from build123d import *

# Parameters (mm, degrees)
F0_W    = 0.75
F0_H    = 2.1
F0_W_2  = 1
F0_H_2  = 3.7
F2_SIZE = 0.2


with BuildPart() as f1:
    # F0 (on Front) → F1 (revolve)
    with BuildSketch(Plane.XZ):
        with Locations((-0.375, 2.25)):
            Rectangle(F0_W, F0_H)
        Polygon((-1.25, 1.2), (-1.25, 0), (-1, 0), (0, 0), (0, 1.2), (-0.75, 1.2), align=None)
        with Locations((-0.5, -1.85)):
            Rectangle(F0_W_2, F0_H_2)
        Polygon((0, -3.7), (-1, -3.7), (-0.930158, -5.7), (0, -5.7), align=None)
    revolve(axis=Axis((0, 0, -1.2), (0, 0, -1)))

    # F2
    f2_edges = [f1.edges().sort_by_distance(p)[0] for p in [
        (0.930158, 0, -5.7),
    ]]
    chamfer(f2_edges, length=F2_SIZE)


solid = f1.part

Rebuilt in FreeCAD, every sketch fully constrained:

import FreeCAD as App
import Part
import Sketcher
from FreeCAD import Vector
Q = App.Units.Quantity


def edges_at(feature, points):
    """Names of the edges that pass closest to the given points."""
    edges = feature.Shape.Edges
    near = lambda p: min(range(len(edges)), key=lambda i: edges[i].distToShape(Part.Vertex(*p))[0])
    return sorted({f"Edge{near(p) + 1}" for p in points})

doc = App.newDocument("Part")
body = doc.addObject("PartDesign::Body", "Body")

# Sketch on XZ plane
sketch1 = doc.addObject("Sketcher::SketchObject", "Sketch")
body.addObject(sketch1)
sketch1.AttachmentSupport = (doc.XZ_Plane, [""])
sketch1.MapMode = "FlatFace"
sketch1.addGeometry([
    Part.LineSegment(Vector(-0.75, 3.3, 0), Vector(-0.75, 1.2, 0)),  # 0
    Part.LineSegment(Vector(-0.75, 1.2, 0), Vector(-1.25, 1.2, 0)),  # 1
    Part.LineSegment(Vector(-1.25, 1.2, 0), Vector(-1.25, 0, 0)),  # 2
    Part.LineSegment(Vector(-1.25, 0, 0), Vector(-1, 0, 0)),  # 3
    Part.LineSegment(Vector(-1, 0, 0), Vector(-1, -3.7, 0)),  # 4
    Part.LineSegment(Vector(-1, -3.7, 0), Vector(-0.93, -5.7, 0)),  # 5
    Part.LineSegment(Vector(-0.93, -5.7, 0), Vector(0, -5.7, 0)),  # 6
    Part.LineSegment(Vector(0, -5.7, 0), Vector(0, 3.3, 0)),  # 7
    Part.LineSegment(Vector(0, 3.3, 0), Vector(-0.75, 3.3, 0)),  # 8
], False)
sketch1.addConstraint([
    Sketcher.Constraint("Coincident", 0, 2, 1, 1),
    Sketcher.Constraint("Coincident", 1, 2, 2, 1),
    Sketcher.Constraint("Coincident", 2, 2, 3, 1),
    Sketcher.Constraint("Coincident", 3, 2, 4, 1),
    Sketcher.Constraint("Coincident", 4, 2, 5, 1),
    Sketcher.Constraint("Coincident", 5, 2, 6, 1),
    Sketcher.Constraint("Coincident", 6, 2, 7, 1),
    Sketcher.Constraint("Coincident", 7, 2, 8, 1),
    Sketcher.Constraint("Coincident", 8, 2, 0, 1),
    Sketcher.Constraint("Vertical", 0),
    Sketcher.Constraint("Horizontal", 1),
    Sketcher.Constraint("Vertical", 2),
    Sketcher.Constraint("Horizontal", 3),
    Sketcher.Constraint("Vertical", 4),
    Sketcher.Constraint("Horizontal", 6),
    Sketcher.Constraint("Vertical", 7),
    Sketcher.Constraint("Horizontal", 8),
    Sketcher.Constraint("PointOnObject", 2, 2, -1),
    Sketcher.Constraint("PointOnObject", 6, 2, -2),
    Sketcher.Constraint("DistanceY", 7, 1, 7, 2, Q("9 mm")),
    Sketcher.Constraint("Angle", 5, Q("-87.999987 deg")),
    Sketcher.Constraint("DistanceX", 1, 2, 1, 1, Q("0.5 mm")),
    Sketcher.Constraint("DistanceY", 0, 2, 0, 1, Q("2.1 mm")),
    Sketcher.Constraint("DistanceY", 2, 2, 2, 1, Q("1.2 mm")),
    Sketcher.Constraint("DistanceY", 4, 2, 4, 1, Q("3.7 mm")),
    Sketcher.Constraint("DistanceX", 3, 2, -1, 1, Q("1 mm")),
    Sketcher.Constraint("DistanceX", 3, 1, 3, 2, Q("0.25 mm")),
])
revolution = doc.addObject("PartDesign::Revolution", "Revolution")
body.addObject(revolution)
revolution.Profile = sketch1
revolution.ReferenceAxis = (sketch1, ["V_Axis"])
revolution.Angle = 360
doc.recompute()

chamfer = doc.addObject("PartDesign::Chamfer", "Chamfer")
body.addObject(chamfer)
chamfer.Base = (revolution, edges_at(revolution, [(0.93, 0, -5.7)]))
chamfer.Size = 0.2

doc.recompute()
